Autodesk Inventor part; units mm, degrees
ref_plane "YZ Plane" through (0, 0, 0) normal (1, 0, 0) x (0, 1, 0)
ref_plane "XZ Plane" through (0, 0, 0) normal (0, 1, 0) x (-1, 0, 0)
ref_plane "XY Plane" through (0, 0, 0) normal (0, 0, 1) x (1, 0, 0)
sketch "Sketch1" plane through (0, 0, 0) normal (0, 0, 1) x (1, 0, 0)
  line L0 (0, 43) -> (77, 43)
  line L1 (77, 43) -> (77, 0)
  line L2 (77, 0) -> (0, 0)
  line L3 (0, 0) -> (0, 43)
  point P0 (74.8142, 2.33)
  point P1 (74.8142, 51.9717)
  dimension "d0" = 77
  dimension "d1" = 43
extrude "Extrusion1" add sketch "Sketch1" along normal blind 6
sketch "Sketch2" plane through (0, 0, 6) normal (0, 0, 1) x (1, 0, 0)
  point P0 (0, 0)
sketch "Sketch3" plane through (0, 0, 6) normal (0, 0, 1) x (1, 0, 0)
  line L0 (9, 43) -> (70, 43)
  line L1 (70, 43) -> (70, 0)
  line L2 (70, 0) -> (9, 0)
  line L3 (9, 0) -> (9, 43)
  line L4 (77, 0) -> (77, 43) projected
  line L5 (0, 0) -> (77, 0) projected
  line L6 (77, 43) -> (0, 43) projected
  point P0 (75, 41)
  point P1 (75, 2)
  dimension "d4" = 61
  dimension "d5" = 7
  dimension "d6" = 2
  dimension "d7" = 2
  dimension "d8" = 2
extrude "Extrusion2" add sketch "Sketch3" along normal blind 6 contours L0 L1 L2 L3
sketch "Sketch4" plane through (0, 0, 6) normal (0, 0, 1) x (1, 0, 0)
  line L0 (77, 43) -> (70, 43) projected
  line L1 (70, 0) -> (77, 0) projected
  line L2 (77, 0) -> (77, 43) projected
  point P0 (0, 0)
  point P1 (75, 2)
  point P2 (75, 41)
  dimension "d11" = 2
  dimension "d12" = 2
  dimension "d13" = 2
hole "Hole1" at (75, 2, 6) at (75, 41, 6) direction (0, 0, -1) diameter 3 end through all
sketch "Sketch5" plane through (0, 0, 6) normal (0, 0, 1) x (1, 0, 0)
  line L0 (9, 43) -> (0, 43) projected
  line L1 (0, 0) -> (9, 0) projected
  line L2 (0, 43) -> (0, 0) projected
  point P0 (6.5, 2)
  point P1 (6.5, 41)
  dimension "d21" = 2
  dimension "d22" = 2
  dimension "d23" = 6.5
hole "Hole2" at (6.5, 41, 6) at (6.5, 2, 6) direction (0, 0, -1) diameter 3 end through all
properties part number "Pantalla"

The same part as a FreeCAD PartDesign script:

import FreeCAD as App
import Part
import Sketcher

V = App.Vector

doc = App.newDocument("Part")
body = doc.addObject("PartDesign::Body", "Body")

sketch1 = body.newObject("Sketcher::SketchObject", "Sketch")
sketch1.AttachmentSupport = (doc.getObject("XY_Plane"), [""])
sketch1.MapMode = "FlatFace"
sketch1.addGeometry([
    Part.LineSegment(V(77, 43, 0), V(0, 43, 0)),
    Part.LineSegment(V(0, 43, 0), V(0, 0, 0)),
    Part.LineSegment(V(0, 0, 0), V(77, 0, 0)),
    Part.LineSegment(V(77, 0, 0), V(77, 43, 0)),
], False)
sketch1.addConstraint([
    Sketcher.Constraint("Coincident", 0, 2, 1, 1),
    Sketcher.Constraint("Coincident", 1, 2, 2, 1),
    Sketcher.Constraint("Coincident", 2, 2, 3, 1),
    Sketcher.Constraint("Coincident", 3, 2, 0, 1),
    Sketcher.Constraint("Horizontal", 0),
    Sketcher.Constraint("Vertical", 1),
    Sketcher.Constraint("Horizontal", 2),
    Sketcher.Constraint("Vertical", 3),
    Sketcher.Constraint("Coincident", 1, 2, -1, 1),
    Sketcher.Constraint("DistanceX", 0, 2, 0, 1, 77.0),
    Sketcher.Constraint("DistanceY", 1, 2, 1, 1, 43.0),
])
pad1 = body.newObject("PartDesign::Pad", "Pad")
pad1.Profile = sketch1
pad1.Length = 6

sketch2 = body.newObject("Sketcher::SketchObject", "Sketch001")
sketch2.AttachmentSupport = (doc.getObject("XY_Plane"), [""])
sketch2.MapMode = "FlatFace"
sketch2.AttachmentOffset = App.Placement(V(0, 0, 6), App.Rotation())
sketch2.addGeometry([
    Part.LineSegment(V(70, 43, 0), V(9, 43, 0)),
    Part.LineSegment(V(9, 43, 0), V(9, 0, 0)),
    Part.LineSegment(V(9, 0, 0), V(70, 0, 0)),
    Part.LineSegment(V(70, 0, 0), V(70, 43, 0)),
], False)
sketch2.addConstraint([
    Sketcher.Constraint("Coincident", 0, 2, 1, 1),
    Sketcher.Constraint("Coincident", 1, 2, 2, 1),
    Sketcher.Constraint("Coincident", 2, 2, 3, 1),
    Sketcher.Constraint("Coincident", 3, 2, 0, 1),
    Sketcher.Constraint("Horizontal", 0),
    Sketcher.Constraint("Vertical", 1),
    Sketcher.Constraint("Horizontal", 2),
    Sketcher.Constraint("Vertical", 3),
    Sketcher.Constraint("PointOnObject", 1, 2, -1),
    Sketcher.Constraint("DistanceX", 0, 2, 0, 1, 61.0),
    Sketcher.Constraint("DistanceY", 1, 2, 1, 1, 43.0),
    Sketcher.Constraint("DistanceX", -1, 1, 0, 2, 9.0),
])
pad2 = body.newObject("PartDesign::Pad", "Pad001")
pad2.Profile = sketch2
pad2.Length = 6

sketch3 = body.newObject("Sketcher::SketchObject", "Sketch002")
sketch3.AttachmentSupport = (doc.getObject("XY_Plane"), [""])
sketch3.MapMode = "FlatFace"
sketch3.AttachmentOffset = App.Placement(V(0, 0, 6), App.Rotation())
sketch3.addGeometry([
    Part.Circle(V(75, 2, 0), V(0, 0, 1), 1.5),
    Part.Circle(V(75, 41, 0), V(0, 0, 1), 1.5),
], False)
sketch3.addConstraint([
    Sketcher.Constraint("Equal", 0, 1),
    Sketcher.Constraint("Vertical", 0, 3, 1, 3),
    Sketcher.Constraint("Diameter", 0, 3.0),
    Sketcher.Constraint("DistanceX", -1, 1, 0, 3, 75.0),
    Sketcher.Constraint("DistanceY", -1, 1, 0, 3, 2.0),
    Sketcher.Constraint("DistanceY", -1, 1, 1, 3, 41.0),
])
doc.recompute()
hole = body.newObject("PartDesign::Hole", "Hole")
hole.Profile = sketch3
hole.ThreadType = "None"
hole.Diameter = 3
hole.DepthType = "ThroughAll"

sketch4 = body.newObject("Sketcher::SketchObject", "Sketch003")
sketch4.AttachmentSupport = (doc.getObject("XY_Plane"), [""])
sketch4.MapMode = "FlatFace"
sketch4.AttachmentOffset = App.Placement(V(0, 0, 6), App.Rotation())
sketch4.addGeometry([
    Part.Circle(V(6.5, 41, 0), V(0, 0, 1), 1.5),
    Part.Circle(V(6.5, 2, 0), V(0, 0, 1), 1.5),
], False)
sketch4.addConstraint([
    Sketcher.Constraint("Equal", 0, 1),
    Sketcher.Constraint("Vertical", 0, 3, 1, 3),
    Sketcher.Constraint("Diameter", 0, 3.0),
    Sketcher.Constraint("DistanceY", -1, 1, 0, 3, 41.0),
    Sketcher.Constraint("DistanceY", -1, 1, 1, 3, 2.0),
    Sketcher.Constraint("DistanceX", -1, 1, 0, 3, 6.5),
])
doc.recompute()
hole2 = body.newObject("PartDesign::Hole", "Hole001")
hole2.Profile = sketch4
hole2.ThreadType = "None"
hole2.Diameter = 3
hole2.DepthType = "ThroughAll"

doc.recompute()
